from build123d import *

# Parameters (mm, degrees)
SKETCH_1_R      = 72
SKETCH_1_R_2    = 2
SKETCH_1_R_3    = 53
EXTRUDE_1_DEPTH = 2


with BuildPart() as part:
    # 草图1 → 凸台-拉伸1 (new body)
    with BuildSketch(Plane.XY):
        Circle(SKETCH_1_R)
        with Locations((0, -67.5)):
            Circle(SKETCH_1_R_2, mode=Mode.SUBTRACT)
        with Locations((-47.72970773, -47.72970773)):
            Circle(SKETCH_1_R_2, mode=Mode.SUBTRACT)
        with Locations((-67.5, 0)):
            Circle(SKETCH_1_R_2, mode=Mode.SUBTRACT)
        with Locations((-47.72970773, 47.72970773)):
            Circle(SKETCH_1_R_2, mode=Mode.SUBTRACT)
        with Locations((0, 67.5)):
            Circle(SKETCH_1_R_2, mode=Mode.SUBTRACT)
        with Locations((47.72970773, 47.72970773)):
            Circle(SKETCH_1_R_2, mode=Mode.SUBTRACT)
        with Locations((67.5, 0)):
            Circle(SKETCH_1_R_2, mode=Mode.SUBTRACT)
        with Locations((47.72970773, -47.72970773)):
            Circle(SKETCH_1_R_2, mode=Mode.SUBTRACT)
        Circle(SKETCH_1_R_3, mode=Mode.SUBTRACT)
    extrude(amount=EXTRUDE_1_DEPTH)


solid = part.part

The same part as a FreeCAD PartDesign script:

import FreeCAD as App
import Part
import Sketcher

doc = App.newDocument("Part")
params = doc.addObject("Spreadsheet::Sheet", "Params")
for row, (alias, value) in enumerate([
    ("sketch1_diameter", "144 mm"),
    ("sketch1_diameter2", "4 mm"),
    ("sketch1_diameter3", "106 mm"),
    ("pad1_length", "2 mm"),
], start=1):
    params.set(f"A{row}", alias)
    params.set(f"B{row}", "=" + value)
    params.setAlias(f"B{row}", alias)

body = doc.addObject("PartDesign::Body", "Body")

sketch1 = doc.addObject("Sketcher::SketchObject", "Sketch")
body.addObject(sketch1)
sketch1.AttachmentSupport = (doc.XY_Plane, [""])
sketch1.MapMode = "FlatFace"
sketch1.addGeometry([
    Part.Circle(App.Vector(0, 0, 0), App.Vector(0, 0, 1), 72),
    Part.Circle(App.Vector(-47.7, -47.7, 0), App.Vector(0, 0, 1), 2),
    Part.Circle(App.Vector(0, -67.5, 0), App.Vector(0, 0, 1), 2),
    Part.Circle(App.Vector(47.7, -47.7, 0), App.Vector(0, 0, 1), 2),
    Part.Circle(App.Vector(-67.5, 0, 0), App.Vector(0, 0, 1), 2),
    Part.Circle(App.Vector(-47.7, 47.7, 0), App.Vector(0, 0, 1), 2),
    Part.Circle(App.Vector(0, 0, 0), App.Vector(0, 0, 1), 53),
    Part.Circle(App.Vector(67.5, 0, 0), App.Vector(0, 0, 1), 2),
    Part.Circle(App.Vector(0, 67.5, 0), App.Vector(0, 0, 1), 2),
    Part.Circle(App.Vector(47.7, 47.7, 0), App.Vector(0, 0, 1), 2),
], False)
sketch1.addConstraint([
    Sketcher.Constraint("Coincident", 0, 3, -1, 1),
    Sketcher.Constraint("Coincident", 6, 3, -1, 1),
    Sketcher.Constraint("Equal", 1, 2),
    Sketcher.Constraint("Equal", 2, 3),
    Sketcher.Constraint("Equal", 3, 4),
    Sketcher.Constraint("Equal", 4, 5),
    Sketcher.Constraint("Equal", 5, 7),
    Sketcher.Constraint("Equal", 7, 8),
    Sketcher.Constraint("Equal", 8, 9),
    Sketcher.Constraint("Symmetric", 3, 3, 5, 3, -1, 1),
    Sketcher.Constraint("Symmetric", 4, 3, 7, 3, -1, 1),
    Sketcher.Constraint("Symmetric", 2, 3, 8, 3, -1, 1),
    Sketcher.Constraint("Symmetric", 1, 3, 9, 3, -1, 1),
    Sketcher.Constraint("Symmetric", 1, 3, 3, 3, -2),
    Sketcher.Constraint("PointOnObject", 2, 3, -2),
    Sketcher.Constraint("PointOnObject", 4, 3, -1),
    Sketcher.Constraint("Diameter", 0, 144.0),
    Sketcher.Constraint("Diameter", 1, 4.0),
    Sketcher.Constraint("Diameter", 6, 106.0),
    Sketcher.Constraint("DistanceY", 2, 3, -1, 1, 67.5),
    Sketcher.Constraint("DistanceX", 4, 3, -1, 1, 67.5),
    Sketcher.Constraint("DistanceX", 1, 3, -1, 1, 47.729708),
    Sketcher.Constraint("DistanceY", 1, 3, -1, 1, 47.729708),
])
sketch1.setExpression("Constraints[16]", "Params.sketch1_diameter")
sketch1.setExpression("Constraints[17]", "Params.sketch1_diameter2")
sketch1.setExpression("Constraints[18]", "Params.sketch1_diameter3")
pad1 = doc.addObject("PartDesign::Pad", "Pad")
body.addObject(pad1)
pad1.Profile = sketch1
pad1.setExpression("Length", "Params.pad1_length")

doc.recompute()
